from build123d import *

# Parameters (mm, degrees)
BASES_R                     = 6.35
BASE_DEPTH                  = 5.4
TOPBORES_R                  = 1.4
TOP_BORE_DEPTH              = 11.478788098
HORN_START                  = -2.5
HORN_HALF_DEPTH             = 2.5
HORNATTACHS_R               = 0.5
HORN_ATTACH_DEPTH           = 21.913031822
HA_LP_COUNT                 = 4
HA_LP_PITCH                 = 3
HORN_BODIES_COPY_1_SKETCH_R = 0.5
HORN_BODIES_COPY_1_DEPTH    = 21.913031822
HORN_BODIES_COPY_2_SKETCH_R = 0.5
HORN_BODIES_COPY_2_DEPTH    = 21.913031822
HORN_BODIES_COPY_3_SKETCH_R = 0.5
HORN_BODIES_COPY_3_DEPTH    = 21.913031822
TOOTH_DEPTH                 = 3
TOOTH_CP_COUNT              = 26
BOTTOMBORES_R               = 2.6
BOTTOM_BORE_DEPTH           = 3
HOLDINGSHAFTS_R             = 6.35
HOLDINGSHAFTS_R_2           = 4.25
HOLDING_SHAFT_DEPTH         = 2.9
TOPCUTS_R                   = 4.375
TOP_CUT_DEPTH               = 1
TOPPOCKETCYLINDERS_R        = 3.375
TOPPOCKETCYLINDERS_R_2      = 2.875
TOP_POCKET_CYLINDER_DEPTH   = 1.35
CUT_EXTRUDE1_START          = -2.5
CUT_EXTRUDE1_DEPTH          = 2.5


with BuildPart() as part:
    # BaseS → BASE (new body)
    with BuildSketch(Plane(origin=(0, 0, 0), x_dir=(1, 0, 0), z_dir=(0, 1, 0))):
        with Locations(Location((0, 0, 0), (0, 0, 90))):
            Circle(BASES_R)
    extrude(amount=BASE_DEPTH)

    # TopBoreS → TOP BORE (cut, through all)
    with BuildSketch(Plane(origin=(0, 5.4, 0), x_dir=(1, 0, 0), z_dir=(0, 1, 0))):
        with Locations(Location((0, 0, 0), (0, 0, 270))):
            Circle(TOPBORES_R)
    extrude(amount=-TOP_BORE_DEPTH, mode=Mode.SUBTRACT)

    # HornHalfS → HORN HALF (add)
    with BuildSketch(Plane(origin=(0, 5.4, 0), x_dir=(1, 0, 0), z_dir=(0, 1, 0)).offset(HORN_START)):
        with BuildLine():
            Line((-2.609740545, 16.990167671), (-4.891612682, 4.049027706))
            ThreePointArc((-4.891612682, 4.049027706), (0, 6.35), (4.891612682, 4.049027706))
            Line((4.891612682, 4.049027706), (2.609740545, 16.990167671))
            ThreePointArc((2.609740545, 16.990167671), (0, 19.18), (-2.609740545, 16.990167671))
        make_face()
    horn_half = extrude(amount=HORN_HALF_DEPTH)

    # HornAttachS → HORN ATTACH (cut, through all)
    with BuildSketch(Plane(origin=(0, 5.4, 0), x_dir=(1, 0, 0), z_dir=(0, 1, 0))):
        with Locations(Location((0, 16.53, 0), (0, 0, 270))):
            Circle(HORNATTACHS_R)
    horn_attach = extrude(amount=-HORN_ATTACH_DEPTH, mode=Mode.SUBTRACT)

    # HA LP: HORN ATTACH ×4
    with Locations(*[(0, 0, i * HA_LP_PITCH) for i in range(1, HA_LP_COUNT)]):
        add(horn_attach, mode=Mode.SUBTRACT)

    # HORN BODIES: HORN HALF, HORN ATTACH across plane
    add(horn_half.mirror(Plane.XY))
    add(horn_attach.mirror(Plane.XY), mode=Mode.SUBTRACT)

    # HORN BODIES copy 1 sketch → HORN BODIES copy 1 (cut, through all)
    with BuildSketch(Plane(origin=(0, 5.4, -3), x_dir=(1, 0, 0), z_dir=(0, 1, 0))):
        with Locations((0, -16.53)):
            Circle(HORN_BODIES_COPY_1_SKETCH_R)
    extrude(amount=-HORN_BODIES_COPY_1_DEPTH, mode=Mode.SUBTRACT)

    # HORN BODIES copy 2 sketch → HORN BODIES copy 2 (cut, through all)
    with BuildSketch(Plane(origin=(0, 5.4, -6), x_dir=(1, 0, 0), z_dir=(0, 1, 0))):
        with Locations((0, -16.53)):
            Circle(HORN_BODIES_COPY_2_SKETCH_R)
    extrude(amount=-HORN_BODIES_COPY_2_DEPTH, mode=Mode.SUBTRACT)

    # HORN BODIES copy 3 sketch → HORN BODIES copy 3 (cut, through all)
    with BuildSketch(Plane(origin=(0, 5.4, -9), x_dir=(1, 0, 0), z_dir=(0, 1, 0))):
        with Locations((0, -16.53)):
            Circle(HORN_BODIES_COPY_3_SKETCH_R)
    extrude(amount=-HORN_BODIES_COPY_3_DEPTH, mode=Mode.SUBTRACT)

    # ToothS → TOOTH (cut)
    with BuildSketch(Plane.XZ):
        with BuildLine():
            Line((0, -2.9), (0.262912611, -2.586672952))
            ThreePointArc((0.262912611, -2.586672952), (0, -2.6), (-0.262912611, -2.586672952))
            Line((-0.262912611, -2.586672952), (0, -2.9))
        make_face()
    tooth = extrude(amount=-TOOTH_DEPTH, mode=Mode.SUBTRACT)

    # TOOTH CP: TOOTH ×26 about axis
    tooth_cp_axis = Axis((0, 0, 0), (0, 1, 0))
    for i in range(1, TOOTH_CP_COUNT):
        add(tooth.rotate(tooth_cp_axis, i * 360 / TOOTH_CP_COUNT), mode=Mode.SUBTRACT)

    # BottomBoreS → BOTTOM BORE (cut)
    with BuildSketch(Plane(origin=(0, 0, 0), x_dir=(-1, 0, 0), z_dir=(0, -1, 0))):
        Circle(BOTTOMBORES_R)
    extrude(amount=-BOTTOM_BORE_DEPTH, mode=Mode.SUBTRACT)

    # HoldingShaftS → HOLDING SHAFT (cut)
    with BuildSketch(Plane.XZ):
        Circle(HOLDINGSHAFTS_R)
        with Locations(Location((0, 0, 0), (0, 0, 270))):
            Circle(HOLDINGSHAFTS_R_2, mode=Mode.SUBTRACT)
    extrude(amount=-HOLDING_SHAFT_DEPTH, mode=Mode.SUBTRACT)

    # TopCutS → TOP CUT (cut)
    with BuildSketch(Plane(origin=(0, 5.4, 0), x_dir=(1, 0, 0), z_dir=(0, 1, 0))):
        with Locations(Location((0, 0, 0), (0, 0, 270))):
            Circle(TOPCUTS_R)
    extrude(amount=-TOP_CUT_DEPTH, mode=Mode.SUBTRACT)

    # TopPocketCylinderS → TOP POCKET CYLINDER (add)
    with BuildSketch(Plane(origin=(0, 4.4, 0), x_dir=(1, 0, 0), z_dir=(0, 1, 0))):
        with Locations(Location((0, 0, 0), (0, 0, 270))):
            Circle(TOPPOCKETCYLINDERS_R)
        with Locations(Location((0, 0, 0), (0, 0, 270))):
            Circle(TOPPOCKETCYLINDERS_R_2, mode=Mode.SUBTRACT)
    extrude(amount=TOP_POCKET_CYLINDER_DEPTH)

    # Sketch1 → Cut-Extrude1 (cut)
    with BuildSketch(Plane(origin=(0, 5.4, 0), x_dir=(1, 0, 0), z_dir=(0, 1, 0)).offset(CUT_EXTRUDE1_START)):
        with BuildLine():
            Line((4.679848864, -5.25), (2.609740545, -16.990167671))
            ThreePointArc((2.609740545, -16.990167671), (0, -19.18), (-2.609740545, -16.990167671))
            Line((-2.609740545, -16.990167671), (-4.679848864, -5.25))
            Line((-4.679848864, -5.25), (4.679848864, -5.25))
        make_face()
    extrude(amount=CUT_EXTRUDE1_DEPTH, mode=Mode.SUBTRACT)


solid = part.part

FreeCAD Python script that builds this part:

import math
import FreeCAD as App
import Part
import Sketcher
from FreeCAD import Vector
Q = App.Units.Quantity

doc = App.newDocument("Part")
body = doc.addObject("PartDesign::Body", "Body")

# Sketch on XZ plane
sketch1 = body.newObject("Sketcher::SketchObject", "Sketch")
sketch1.AttachmentSupport = (doc.getObject("XZ_Plane"), [""])
sketch1.MapMode = "FlatFace"
sketch1.addGeometry(Part.Circle(Vector(0, 0, 0), Vector(0, 0, 1), 6.35), False)
sketch1.addConstraint(Sketcher.Constraint("Coincident", 0, 3, -1, 1))
sketch1.addConstraint(Sketcher.Constraint("Diameter", 0, 12.7))
pad1 = body.newObject("PartDesign::Pad", "Pad")
pad1.Profile = sketch1
pad1.Length = 5.4
pad1.Reversed = True

# Sketch on XZ plane
sketch2 = body.newObject("Sketcher::SketchObject", "Sketch001")
sketch2.AttachmentSupport = (doc.getObject("XZ_Plane"), [""])
sketch2.MapMode = "FlatFace"
sketch2.AttachmentOffset = App.Placement(Vector(0, 0, -5.4), App.Rotation())
sketch2.addGeometry(Part.Circle(Vector(0, 0, 0), Vector(0, 0, 1), 1.4), False)
sketch2.addConstraint(Sketcher.Constraint("Coincident", 0, 3, -1, 1))
sketch2.addConstraint(Sketcher.Constraint("Diameter", 0, 2.8))
pocket1 = body.newObject("PartDesign::Pocket", "Pocket")
pocket1.Profile = sketch2
pocket1.Type = "ThroughAll"
pocket1.Reversed = True

# Sketch on XZ plane
sketch3 = body.newObject("Sketcher::SketchObject", "Sketch002")
sketch3.AttachmentSupport = (doc.getObject("XZ_Plane"), [""])
sketch3.MapMode = "FlatFace"
sketch3.AttachmentOffset = App.Placement(Vector(0, 0, -2.9), App.Rotation())
sketch3.addGeometry(Part.LineSegment(Vector(-2.609741, -16.990168, 0), Vector(-4.891613, -4.049028, 0)), False)
sketch3.addGeometry(Part.ArcOfCircle(Part.Circle(Vector(0, 0, 0), Vector(0, 0, 1), 6.35), math.radians(-140.383775), math.radians(-39.616225)), False)
sketch3.addGeometry(Part.LineSegment(Vector(4.891613, -4.049028, 0), Vector(2.609741, -16.990168, 0)), False)
sketch3.addGeometry(Part.ArcOfCircle(Part.Circle(Vector(0, -16.53, 0), Vector(0, 0, 1), 2.65), math.radians(-170), math.radians(-10)), False)
sketch3.addConstraint(Sketcher.Constraint("Coincident", 0, 2, 1, 1))
sketch3.addConstraint(Sketcher.Constraint("Coincident", 1, 2, 2, 1))
sketch3.addConstraint(Sketcher.Constraint("Tangent", 2, 2, 3, 2))
sketch3.addConstraint(Sketcher.Constraint("Tangent", 3, 1, 0, 1))
sketch3.addConstraint(Sketcher.Constraint("Coincident", 1, 3, -1, 1))
sketch3.addConstraint(Sketcher.Constraint("Symmetric", 2, 2, 3, 1, -2))
sketch3.addConstraint(Sketcher.Constraint("Angle", 0, Q("100 deg")))
sketch3.addConstraint(Sketcher.Constraint("Radius", 1, 6.35))
sketch3.addConstraint(Sketcher.Constraint("Radius", 3, 2.65))
sketch3.addConstraint(Sketcher.Constraint("DistanceY", 3, 3, -1, 1, 16.53))
pad2 = body.newObject("PartDesign::Pad", "Pad001")
pad2.Profile = sketch3
pad2.Length = 2.5
pad2.Reversed = True

# Sketch on XZ plane
sketch4 = body.newObject("Sketcher::SketchObject", "Sketch003")
sketch4.AttachmentSupport = (doc.getObject("XZ_Plane"), [""])
sketch4.MapMode = "FlatFace"
sketch4.AttachmentOffset = App.Placement(Vector(0, 0, -5.4), App.Rotation())
sketch4.addGeometry(Part.Circle(Vector(0, -16.53, 0), Vector(0, 0, 1), 0.5), False)
sketch4.addConstraint(Sketcher.Constraint("PointOnObject", 0, 3, -2))
sketch4.addConstraint(Sketcher.Constraint("Diameter", 0, 1.0))
sketch4.addConstraint(Sketcher.Constraint("DistanceY", 0, 3, -1, 1, 16.53))
pocket2 = body.newObject("PartDesign::Pocket", "Pocket001")
pocket2.Profile = sketch4
pocket2.Type = "ThroughAll"
pocket2.Reversed = True
doc.recompute()

linearpattern = body.newObject("PartDesign::LinearPattern", "LinearPattern")
linearpattern.Originals = [pocket2]
linearpattern.Direction = (doc.getObject("Z_Axis"), [""])
linearpattern.Mode = "offset"
linearpattern.Offset = 3
linearpattern.Occurrences = 4
body.Tip = linearpattern
doc.recompute()

mirrored = body.newObject("PartDesign::Mirrored", "Mirrored")
mirrored.Originals = [pad2, pocket2]
mirrored.MirrorPlane = (doc.getObject("XY_Plane"), [""])
body.Tip = mirrored

# Sketch on XZ plane
sketch5 = body.newObject("Sketcher::SketchObject", "Sketch004")
sketch5.AttachmentSupport = (doc.getObject("XZ_Plane"), [""])
sketch5.MapMode = "FlatFace"
sketch5.AttachmentOffset = App.Placement(Vector(0, 0, -5.4), App.Rotation())
sketch5.addGeometry(Part.Circle(Vector(0, 13.53, 0), Vector(0, 0, 1), 0.5), False)
sketch5.addConstraint(Sketcher.Constraint("PointOnObject", 0, 3, -2))
sketch5.addConstraint(Sketcher.Constraint("Diameter", 0, 1.0))
sketch5.addConstraint(Sketcher.Constraint("DistanceY", -1, 1, 0, 3, 13.53))
pocket3 = body.newObject("PartDesign::Pocket", "Pocket002")
pocket3.Profile = sketch5
pocket3.Type = "ThroughAll"
pocket3.Reversed = True

# Sketch on XZ plane
sketch6 = body.newObject("Sketcher::SketchObject", "Sketch005")
sketch6.AttachmentSupport = (doc.getObject("XZ_Plane"), [""])
sketch6.MapMode = "FlatFace"
sketch6.AttachmentOffset = App.Placement(Vector(0, 0, -5.4), App.Rotation())
sketch6.addGeometry(Part.Circle(Vector(0, 10.53, 0), Vector(0, 0, 1), 0.5), False)
sketch6.addConstraint(Sketcher.Constraint("PointOnObject", 0, 3, -2))
sketch6.addConstraint(Sketcher.Constraint("Diameter", 0, 1.0))
sketch6.addConstraint(Sketcher.Constraint("DistanceY", -1, 1, 0, 3, 10.53))
pocket4 = body.newObject("PartDesign::Pocket", "Pocket003")
pocket4.Profile = sketch6
pocket4.Type = "ThroughAll"
pocket4.Reversed = True

# Sketch on XZ plane
sketch7 = body.newObject("Sketcher::SketchObject", "Sketch006")
sketch7.AttachmentSupport = (doc.getObject("XZ_Plane"), [""])
sketch7.MapMode = "FlatFace"
sketch7.AttachmentOffset = App.Placement(Vector(0, 0, -5.4), App.Rotation())
sketch7.addGeometry(Part.Circle(Vector(0, 7.53, 0), Vector(0, 0, 1), 0.5), False)
sketch7.addConstraint(Sketcher.Constraint("PointOnObject", 0, 3, -2))
sketch7.addConstraint(Sketcher.Constraint("Diameter", 0, 1.0))
sketch7.addConstraint(Sketcher.Constraint("DistanceY", -1, 1, 0, 3, 7.53))
pocket5 = body.newObject("PartDesign::Pocket", "Pocket004")
pocket5.Profile = sketch7
pocket5.Type = "ThroughAll"
pocket5.Reversed = True

# Sketch on XZ plane
sketch8 = body.newObject("Sketcher::SketchObject", "Sketch007")
sketch8.AttachmentSupport = (doc.getObject("XZ_Plane"), [""])
sketch8.MapMode = "FlatFace"
sketch8.addGeometry(Part.LineSegment(Vector(0, -2.9, 0), Vector(0.262913, -2.586673, 0)), False)
sketch8.addGeometry(Part.ArcOfCircle(Part.Circle(Vector(0, 0, 0), Vector(0, 0, 1), 2.6), math.radians(-95.803682), math.radians(-84.196318)), False)
sketch8.addGeometry(Part.LineSegment(Vector(-0.262913, -2.586673, 0), Vector(0, -2.9, 0)), False)
sketch8.addConstraint(Sketcher.Constraint("Coincident", 0, 2, 1, 2))
sketch8.addConstraint(Sketcher.Constraint("Coincident", 1, 1, 2, 1))
sketch8.addConstraint(Sketcher.Constraint("Coincident", 2, 2, 0, 1))
sketch8.addConstraint(Sketcher.Constraint("Coincident", 1, 3, -1, 1))
sketch8.addConstraint(Sketcher.Constraint("PointOnObject", 2, 2, -2))
sketch8.addConstraint(Sketcher.Constraint("Horizontal", 0, 2, 1, 1))
sketch8.addConstraint(Sketcher.Constraint("Radius", 1, 2.6))
sketch8.addConstraint(Sketcher.Constraint("Angle", 0, Q("50 deg")))
sketch8.addConstraint(Sketcher.Constraint("DistanceY", 2, 2, -1, 1, 2.9))
pocket6 = body.newObject("PartDesign::Pocket", "Pocket005")
pocket6.Profile = sketch8
pocket6.Length = 3
doc.recompute()

polarpattern = body.newObject("PartDesign::PolarPattern", "PolarPattern")
polarpattern.Originals = [pocket6]
polarpattern.Axis = (doc.getObject("Y_Axis"), [""])
polarpattern.Angle = 360
polarpattern.Occurrences = 26
body.Tip = polarpattern

# Sketch on XZ plane
sketch9 = body.newObject("Sketcher::SketchObject", "Sketch008")
sketch9.AttachmentSupport = (doc.getObject("XZ_Plane"), [""])
sketch9.MapMode = "FlatFace"
sketch9.addGeometry(Part.Circle(Vector(0, 0, 0), Vector(0, 0, 1), 2.6), False)
sketch9.addConstraint(Sketcher.Constraint("Coincident", 0, 3, -1, 1))
sketch9.addConstraint(Sketcher.Constraint("Diameter", 0, 5.2))
pocket7 = body.newObject("PartDesign::Pocket", "Pocket006")
pocket7.Profile = sketch9
pocket7.Length = 3

# Sketch on XZ plane
sketch10 = body.newObject("Sketcher::SketchObject", "Sketch009")
sketch10.AttachmentSupport = (doc.getObject("XZ_Plane"), [""])
sketch10.MapMode = "FlatFace"
sketch10.addGeometry(Part.Circle(Vector(0, 0, 0), Vector(0, 0, 1), 6.35), False)
sketch10.addGeometry(Part.Circle(Vector(0, 0, 0), Vector(0, 0, 1), 4.25), False)
sketch10.addConstraint(Sketcher.Constraint("Coincident", 0, 3, -1, 1))
sketch10.addConstraint(Sketcher.Constraint("Coincident", 1, 3, -1, 1))
sketch10.addConstraint(Sketcher.Constraint("Diameter", 0, 12.7))
sketch10.addConstraint(Sketcher.Constraint("Diameter", 1, 8.5))
pocket8 = body.newObject("PartDesign::Pocket", "Pocket007")
pocket8.Profile = sketch10
pocket8.Length = 2.9

# Sketch on XZ plane
sketch11 = body.newObject("Sketcher::SketchObject", "Sketch010")
sketch11.AttachmentSupport = (doc.getObject("XZ_Plane"), [""])
sketch11.MapMode = "FlatFace"
sketch11.AttachmentOffset = App.Placement(Vector(0, 0, -5.4), App.Rotation())
sketch11.addGeometry(Part.Circle(Vector(0, 0, 0), Vector(0, 0, 1), 4.375), False)
sketch11.addConstraint(Sketcher.Constraint("Coincident", 0, 3, -1, 1))
sketch11.addConstraint(Sketcher.Constraint("Diameter", 0, 8.75))
pocket9 = body.newObject("PartDesign::Pocket", "Pocket008")
pocket9.Profile = sketch11
pocket9.Length = 1
pocket9.Reversed = True

# Sketch on XZ plane
sketch12 = body.newObject("Sketcher::SketchObject", "Sketch011")
sketch12.AttachmentSupport = (doc.getObject("XZ_Plane"), [""])
sketch12.MapMode = "FlatFace"
sketch12.AttachmentOffset = App.Placement(Vector(0, 0, -4.4), App.Rotation())
sketch12.addGeometry(Part.Circle(Vector(0, 0, 0), Vector(0, 0, 1), 3.375), False)
sketch12.addGeometry(Part.Circle(Vector(0, 0, 0), Vector(0, 0, 1), 2.875), False)
sketch12.addConstraint(Sketcher.Constraint("Coincident", 0, 3, -1, 1))
sketch12.addConstraint(Sketcher.Constraint("Coincident", 1, 3, -1, 1))
sketch12.addConstraint(Sketcher.Constraint("Diameter", 0, 6.75))
sketch12.addConstraint(Sketcher.Constraint("Diameter", 1, 5.75))
pad3 = body.newObject("PartDesign::Pad", "Pad002")
pad3.Profile = sketch12
pad3.Length = 1.35
pad3.Reversed = True

# Sketch on XZ plane
sketch13 = body.newObject("Sketcher::SketchObject", "Sketch012")
sketch13.AttachmentSupport = (doc.getObject("XZ_Plane"), [""])
sketch13.MapMode = "FlatFace"
sketch13.AttachmentOffset = App.Placement(Vector(0, 0, -2.9), App.Rotation())
sketch13.addGeometry(Part.LineSegment(Vector(2.609741, 16.990168, 0), Vector(4.679849, 5.25, 0)), False)
sketch13.addGeometry(Part.LineSegment(Vector(4.679849, 5.25, 0), Vector(-4.679849, 5.25, 0)), False)
sketch13.addGeometry(Part.LineSegment(Vector(-4.679849, 5.25, 0), Vector(-2.609741, 16.990168, 0)), False)
sketch13.addGeometry(Part.ArcOfCircle(Part.Circle(Vector(0, 16.53, 0), Vector(0, 0, 1), 2.65), math.radians(10), math.radians(170)), False)
sketch13.addConstraint(Sketcher.Constraint("Coincident", 0, 2, 1, 1))
sketch13.addConstraint(Sketcher.Constraint("Coincident", 1, 2, 2, 1))
sketch13.addConstraint(Sketcher.Constraint("Tangent", 2, 2, 3, 2))
sketch13.addConstraint(Sketcher.Constraint("Tangent", 3, 1, 0, 1))
sketch13.addConstraint(Sketcher.Constraint("Horizontal", 1))
sketch13.addConstraint(Sketcher.Constraint("Symmetric", 2, 2, 3, 1, -2))
sketch13.addConstraint(Sketcher.Constraint("Angle", 0, Q("-80 deg")))
sketch13.addConstraint(Sketcher.Constraint("Radius", 3, 2.65))
sketch13.addConstraint(Sketcher.Constraint("DistanceY", -1, 1, 3, 3, 16.53))
sketch13.addConstraint(Sketcher.Constraint("DistanceY", -1, 1, 0, 2, 5.25))
pocket10 = body.newObject("PartDesign::Pocket", "Pocket009")
pocket10.Profile = sketch13
pocket10.Length = 2.5

doc.recompute()
